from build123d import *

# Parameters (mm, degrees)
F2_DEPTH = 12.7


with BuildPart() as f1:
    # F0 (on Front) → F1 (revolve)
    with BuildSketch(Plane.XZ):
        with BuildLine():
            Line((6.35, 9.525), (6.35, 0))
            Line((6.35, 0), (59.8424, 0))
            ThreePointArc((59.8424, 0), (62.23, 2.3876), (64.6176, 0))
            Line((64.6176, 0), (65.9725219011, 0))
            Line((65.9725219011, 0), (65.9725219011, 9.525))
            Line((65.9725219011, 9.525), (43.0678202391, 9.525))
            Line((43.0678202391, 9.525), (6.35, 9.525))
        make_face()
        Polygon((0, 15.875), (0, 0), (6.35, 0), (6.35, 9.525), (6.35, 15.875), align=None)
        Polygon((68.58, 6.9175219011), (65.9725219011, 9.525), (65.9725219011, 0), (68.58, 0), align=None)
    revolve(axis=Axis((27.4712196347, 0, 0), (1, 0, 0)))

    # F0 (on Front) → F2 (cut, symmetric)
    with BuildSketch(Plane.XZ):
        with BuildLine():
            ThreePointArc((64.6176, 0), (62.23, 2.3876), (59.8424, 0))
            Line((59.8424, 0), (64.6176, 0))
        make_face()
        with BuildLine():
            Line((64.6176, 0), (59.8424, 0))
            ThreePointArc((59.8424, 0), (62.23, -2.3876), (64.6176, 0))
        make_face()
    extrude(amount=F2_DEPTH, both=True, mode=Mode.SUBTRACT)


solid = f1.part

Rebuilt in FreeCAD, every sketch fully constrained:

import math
import FreeCAD as App
import Part
import Sketcher
Q = App.Units.Quantity

doc = App.newDocument("Part")
body = doc.addObject("PartDesign::Body", "Body")

# Sketch on XZ plane
sketch1 = doc.addObject("Sketcher::SketchObject", "Sketch")
body.addObject(sketch1)
sketch1.AttachmentSupport = (doc.XZ_Plane, [""])
sketch1.MapMode = "FlatFace"
sketch1.addGeometry([
    Part.ArcOfCircle(Part.Circle(App.Vector(62.23, 0, 0), App.Vector(0, 0, 1), 2.3876), math.radians(0), math.radians(180)),  # 0
    Part.LineSegment(App.Vector(64.6176, 0, 0), App.Vector(68.58, 0, 0)),  # 1
    Part.LineSegment(App.Vector(68.58, 0, 0), App.Vector(68.58, 6.917522, 0)),  # 2
    Part.LineSegment(App.Vector(68.58, 6.917522, 0), App.Vector(65.972522, 9.525, 0)),  # 3
    Part.LineSegment(App.Vector(65.972522, 9.525, 0), App.Vector(6.35, 9.525, 0)),  # 4
    Part.LineSegment(App.Vector(6.35, 9.525, 0), App.Vector(6.35, 15.875, 0)),  # 5
    Part.LineSegment(App.Vector(6.35, 15.875, 0), App.Vector(0, 15.875, 0)),  # 6
    Part.LineSegment(App.Vector(0, 15.875, 0), App.Vector(0, 0, 0)),  # 7
    Part.LineSegment(App.Vector(0, 0, 0), App.Vector(59.8424, 0, 0)),  # 8
], False)
sketch1.addConstraint([
    Sketcher.Constraint("Coincident", 0, 1, 1, 1),
    Sketcher.Constraint("Coincident", 1, 2, 2, 1),
    Sketcher.Constraint("Coincident", 2, 2, 3, 1),
    Sketcher.Constraint("Coincident", 3, 2, 4, 1),
    Sketcher.Constraint("Coincident", 4, 2, 5, 1),
    Sketcher.Constraint("Coincident", 5, 2, 6, 1),
    Sketcher.Constraint("Coincident", 6, 2, 7, 1),
    Sketcher.Constraint("Coincident", 7, 2, 8, 1),
    Sketcher.Constraint("Coincident", 8, 2, 0, 2),
    Sketcher.Constraint("Horizontal", 1),
    Sketcher.Constraint("Vertical", 2),
    Sketcher.Constraint("Horizontal", 4),
    Sketcher.Constraint("Vertical", 5),
    Sketcher.Constraint("Horizontal", 6),
    Sketcher.Constraint("Vertical", 7),
    Sketcher.Constraint("Horizontal", 8),
    Sketcher.Constraint("Coincident", 7, 2, -1, 1),
    Sketcher.Constraint("PointOnObject", 0, 3, -1),
    Sketcher.Constraint("PointOnObject", 0, 1, -1),
    Sketcher.Constraint("Equal", 6, 5),
    Sketcher.Constraint("Angle", 3, Q("135 deg")),
    Sketcher.Constraint("Radius", 0, Q("0.094 in")),
    Sketcher.Constraint("DistanceX", 6, 2, 6, 1, Q("0.25 in")),
    Sketcher.Constraint("DistanceX", -1, 1, 1, 2, Q("2.7 in")),
    Sketcher.Constraint("DistanceX", 4, 2, 0, 3, Q("2.2 in")),
    Sketcher.Constraint("DistanceY", 7, 2, 7, 1, Q("0.625 in")),
    Sketcher.Constraint("DistanceX", 4, 2, 4, 1, Q("59.622522 mm")),
])
revolution = doc.addObject("PartDesign::Revolution", "Revolution")
body.addObject(revolution)
revolution.Profile = sketch1
revolution.ReferenceAxis = (sketch1, ["H_Axis"])
revolution.Angle = 360

# Sketch on XZ plane
sketch2 = doc.addObject("Sketcher::SketchObject", "Sketch001")
body.addObject(sketch2)
sketch2.AttachmentSupport = (doc.XZ_Plane, [""])
sketch2.MapMode = "FlatFace"
sketch2.addGeometry(Part.Circle(App.Vector(62.23, 0, 0), App.Vector(0, 0, 1), 2.3876), False)
sketch2.addConstraint([
    Sketcher.Constraint("PointOnObject", 0, 3, -1),
    Sketcher.Constraint("Diameter", 0, Q("0.188 in")),
    Sketcher.Constraint("DistanceX", -1, 1, 0, 3, Q("2.45 in")),
])
pocket1 = doc.addObject("PartDesign::Pocket", "Pocket")
body.addObject(pocket1)
pocket1.Profile = sketch2
pocket1.Length = Q("1 in")
pocket1.Midplane = True

doc.recompute()
